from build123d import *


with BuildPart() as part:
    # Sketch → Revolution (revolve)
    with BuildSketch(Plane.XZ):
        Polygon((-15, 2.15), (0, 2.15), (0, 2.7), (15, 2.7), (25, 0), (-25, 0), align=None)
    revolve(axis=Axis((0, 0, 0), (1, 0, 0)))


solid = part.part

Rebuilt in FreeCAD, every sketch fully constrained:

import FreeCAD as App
import Part
import Sketcher
from FreeCAD import Vector
Q = App.Units.Quantity


def add_polygon(sketch, points):
    """Adds a closed chain of lines whose ends are joined by coincident constraints."""
    first, n = sketch.GeometryCount, len(points)
    for a, b in zip(points, points[1:] + points[:1]):
        sketch.addGeometry(Part.LineSegment(App.Vector(*a, 0), App.Vector(*b, 0)), False)
    for i in range(n):
        sketch.addConstraint(Sketcher.Constraint("Coincident", first + i, 2, first + (i + 1) % n, 1))

doc = App.newDocument("Part")
body = doc.addObject("PartDesign::Body", "Body")

# Sketch on XZ plane
sketch1 = doc.addObject("Sketcher::SketchObject", "Sketch")
body.addObject(sketch1)
sketch1.AttachmentSupport = (doc.XZ_Plane, [""])
sketch1.MapMode = "FlatFace"
add_polygon(sketch1, [(0, 2.15), (-15, 2.15), (-25, 0), (25, 0), (15, 2.7), (0, 2.7)])  # lines 0-5
sketch1.addConstraint([
    Sketcher.Constraint("Horizontal", 0),
    Sketcher.Constraint("Horizontal", 2),
    Sketcher.Constraint("Horizontal", 4),
    Sketcher.Constraint("Vertical", 5),
    Sketcher.Constraint("Symmetric", 1, 2, 2, 2, -1, 1),
    Sketcher.Constraint("PointOnObject", 4, 2, -2),
    Sketcher.Constraint("Equal", 0, 4),
    Sketcher.Constraint("DistanceX", 0, 2, 0, 1, Q("15 mm")),
    Sketcher.Constraint("DistanceX", 2, 1, 2, 2, Q("50 mm")),
    Sketcher.Constraint("DistanceY", 5, 2, 5, 1, Q("0.55 mm")),
    Sketcher.Constraint("DistanceY", -1, 1, 3, 2, Q("2.7 mm")),
])
revolution = doc.addObject("PartDesign::Revolution", "Revolution")
body.addObject(revolution)
revolution.Profile = sketch1
revolution.ReferenceAxis = (sketch1, ["H_Axis"])
revolution.Angle = 360

doc.recompute()
